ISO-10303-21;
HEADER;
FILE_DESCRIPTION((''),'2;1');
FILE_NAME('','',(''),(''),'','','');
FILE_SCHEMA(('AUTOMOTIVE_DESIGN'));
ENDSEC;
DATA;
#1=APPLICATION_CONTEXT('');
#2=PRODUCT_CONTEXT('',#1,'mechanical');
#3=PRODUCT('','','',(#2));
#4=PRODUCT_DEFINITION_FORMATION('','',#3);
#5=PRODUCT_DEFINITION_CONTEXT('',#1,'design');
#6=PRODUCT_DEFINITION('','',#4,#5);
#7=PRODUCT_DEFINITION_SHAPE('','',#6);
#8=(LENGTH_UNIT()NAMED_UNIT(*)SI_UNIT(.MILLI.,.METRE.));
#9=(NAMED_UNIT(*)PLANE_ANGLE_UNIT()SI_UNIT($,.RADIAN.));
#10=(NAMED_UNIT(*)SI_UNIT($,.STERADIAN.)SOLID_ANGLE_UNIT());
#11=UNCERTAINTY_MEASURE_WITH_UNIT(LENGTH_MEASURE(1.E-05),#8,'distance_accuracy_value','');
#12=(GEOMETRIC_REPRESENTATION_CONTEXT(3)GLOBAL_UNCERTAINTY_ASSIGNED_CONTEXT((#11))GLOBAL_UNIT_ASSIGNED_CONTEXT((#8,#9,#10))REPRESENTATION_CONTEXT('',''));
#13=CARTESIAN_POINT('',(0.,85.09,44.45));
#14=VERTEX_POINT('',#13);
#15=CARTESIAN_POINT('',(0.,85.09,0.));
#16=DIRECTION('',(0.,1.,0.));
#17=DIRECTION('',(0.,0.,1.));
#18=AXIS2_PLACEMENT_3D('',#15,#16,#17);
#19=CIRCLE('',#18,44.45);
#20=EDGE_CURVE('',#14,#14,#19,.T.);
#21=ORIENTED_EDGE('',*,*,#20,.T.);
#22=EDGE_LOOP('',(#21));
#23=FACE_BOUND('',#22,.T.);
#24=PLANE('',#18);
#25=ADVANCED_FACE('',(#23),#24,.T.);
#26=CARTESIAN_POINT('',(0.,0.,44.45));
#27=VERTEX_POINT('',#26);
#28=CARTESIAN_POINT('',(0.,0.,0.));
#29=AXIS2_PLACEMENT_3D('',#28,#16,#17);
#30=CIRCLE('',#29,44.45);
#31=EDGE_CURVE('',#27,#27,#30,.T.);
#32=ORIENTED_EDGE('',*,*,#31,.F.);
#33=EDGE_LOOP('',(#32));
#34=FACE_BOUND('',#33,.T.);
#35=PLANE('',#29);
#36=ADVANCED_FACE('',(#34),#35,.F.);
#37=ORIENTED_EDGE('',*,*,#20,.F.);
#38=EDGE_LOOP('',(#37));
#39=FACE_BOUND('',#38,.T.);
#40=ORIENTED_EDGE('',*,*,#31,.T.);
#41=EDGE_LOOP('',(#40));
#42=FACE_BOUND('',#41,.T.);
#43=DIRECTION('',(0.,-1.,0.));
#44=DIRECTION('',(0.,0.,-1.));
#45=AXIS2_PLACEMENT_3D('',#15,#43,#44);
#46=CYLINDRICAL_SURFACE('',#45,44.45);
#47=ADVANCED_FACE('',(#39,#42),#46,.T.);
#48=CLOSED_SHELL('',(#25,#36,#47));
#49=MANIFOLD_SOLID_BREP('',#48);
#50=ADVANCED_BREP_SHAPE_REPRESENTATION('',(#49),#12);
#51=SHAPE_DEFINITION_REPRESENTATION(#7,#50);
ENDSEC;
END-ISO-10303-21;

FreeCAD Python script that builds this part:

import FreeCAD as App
import Part
import Sketcher
Q = App.Units.Quantity

doc = App.newDocument("Part")
params = doc.addObject("Spreadsheet::Sheet", "Params")
for row, (alias, value) in enumerate([
    ("sketch1_diameter", "3.5 in"),
    ("pad1_length", "3.35 in"),
], start=1):
    params.set(f"A{row}", alias)
    params.set(f"B{row}", "=" + value)
    params.setAlias(f"B{row}", alias)

body = doc.addObject("PartDesign::Body", "Body")

# Sketch on XZ plane
sketch1 = body.newObject("Sketcher::SketchObject", "Sketch")
sketch1.AttachmentSupport = (doc.getObject("XZ_Plane"), [""])
sketch1.MapMode = "FlatFace"
sketch1.addGeometry(Part.Circle(App.Vector(0, 0, 0), App.Vector(0, 0, 1), 44), False)
sketch1.addConstraint(Sketcher.Constraint("Coincident", 0, 3, -1, 1))
sketch1.addConstraint(Sketcher.Constraint("Diameter", 0, Q("3.5 in")))
sketch1.setExpression("Constraints[1]", "Params.sketch1_diameter")
pad1 = body.newObject("PartDesign::Pad", "Pad")
pad1.Profile = sketch1
pad1.setExpression("Length", "Params.pad1_length")
pad1.Reversed = True

doc.recompute()
